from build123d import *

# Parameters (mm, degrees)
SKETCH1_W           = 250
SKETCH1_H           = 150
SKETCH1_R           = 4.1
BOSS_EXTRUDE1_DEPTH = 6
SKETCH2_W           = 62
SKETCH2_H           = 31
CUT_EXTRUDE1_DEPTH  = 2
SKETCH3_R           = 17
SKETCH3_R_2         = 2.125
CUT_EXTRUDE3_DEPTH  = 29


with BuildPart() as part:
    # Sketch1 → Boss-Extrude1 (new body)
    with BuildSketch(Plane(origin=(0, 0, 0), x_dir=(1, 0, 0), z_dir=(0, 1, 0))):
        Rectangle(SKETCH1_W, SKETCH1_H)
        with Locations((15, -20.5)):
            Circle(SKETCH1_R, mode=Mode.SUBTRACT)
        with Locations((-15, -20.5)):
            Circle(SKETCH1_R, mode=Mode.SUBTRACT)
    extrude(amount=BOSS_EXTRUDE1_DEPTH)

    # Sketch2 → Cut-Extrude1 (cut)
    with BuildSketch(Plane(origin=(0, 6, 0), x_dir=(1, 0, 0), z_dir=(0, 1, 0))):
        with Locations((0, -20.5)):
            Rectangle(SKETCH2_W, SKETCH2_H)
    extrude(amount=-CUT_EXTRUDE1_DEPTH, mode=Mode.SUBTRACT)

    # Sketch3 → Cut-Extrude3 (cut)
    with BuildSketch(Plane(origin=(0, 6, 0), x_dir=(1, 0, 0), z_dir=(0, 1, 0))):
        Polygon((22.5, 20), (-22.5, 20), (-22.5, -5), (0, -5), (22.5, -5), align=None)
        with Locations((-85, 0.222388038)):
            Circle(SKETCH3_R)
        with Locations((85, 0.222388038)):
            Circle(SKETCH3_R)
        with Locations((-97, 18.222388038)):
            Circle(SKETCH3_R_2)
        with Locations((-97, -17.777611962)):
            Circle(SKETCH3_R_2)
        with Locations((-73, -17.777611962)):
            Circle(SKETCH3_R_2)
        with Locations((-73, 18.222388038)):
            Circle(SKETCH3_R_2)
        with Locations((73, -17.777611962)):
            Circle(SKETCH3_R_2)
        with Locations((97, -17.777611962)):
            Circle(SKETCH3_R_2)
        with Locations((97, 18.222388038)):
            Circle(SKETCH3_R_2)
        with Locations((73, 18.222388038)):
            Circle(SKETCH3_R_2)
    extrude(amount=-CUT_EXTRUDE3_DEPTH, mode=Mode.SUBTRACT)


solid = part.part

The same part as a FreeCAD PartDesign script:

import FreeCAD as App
import Part
import Sketcher
from FreeCAD import Vector
Q = App.Units.Quantity


def add_polygon(sketch, points):
    """Adds a closed chain of lines whose ends are joined by coincident constraints."""
    first, n = sketch.GeometryCount, len(points)
    for a, b in zip(points, points[1:] + points[:1]):
        sketch.addGeometry(Part.LineSegment(App.Vector(*a, 0), App.Vector(*b, 0)), False)
    for i in range(n):
        sketch.addConstraint(Sketcher.Constraint("Coincident", first + i, 2, first + (i + 1) % n, 1))

doc = App.newDocument("Part")
params = doc.addObject("Spreadsheet::Sheet", "Params")
for row, (alias, value) in enumerate([
    ("sketch1_diameter", "8.2 mm"),
    ("sketch1_width", "250 mm"),
    ("sketch1_height", "150 mm"),
    ("pad1_length", "6 mm"),
    ("sketch2_width", "62 mm"),
    ("sketch2_height", "31 mm"),
    ("pocket1_length", "2 mm"),
    ("sketch3_diameter", "34 mm"),
    ("sketch3_diameter2", "4.25 mm"),
    ("sketch3_width", "45 mm"),
    ("sketch3_height", "25 mm"),
    ("pocket2_length", "29 mm"),
], start=1):
    params.set(f"A{row}", alias)
    params.set(f"B{row}", "=" + value)
    params.setAlias(f"B{row}", alias)

body = doc.addObject("PartDesign::Body", "Body")

sketch1 = body.newObject("Sketcher::SketchObject", "Sketch")
sketch1.AttachmentSupport = (doc.getObject("XZ_Plane"), [""])
sketch1.MapMode = "FlatFace"
add_polygon(sketch1, [(-125, -75), (-125, 75), (125, 75), (125, -75)])
sketch1.addGeometry(Part.Circle(Vector(-15, 20.5, 0), Vector(0, 0, 1), 4.1), False)
sketch1.addGeometry(Part.Circle(Vector(15, 20.5, 0), Vector(0, 0, 1), 4.1), False)
sketch1.addConstraint([
    Sketcher.Constraint("Vertical", 0),
    Sketcher.Constraint("Horizontal", 1),
    Sketcher.Constraint("Vertical", 2),
    Sketcher.Constraint("Horizontal", 3),
    Sketcher.Constraint("Equal", 4, 5),
    Sketcher.Constraint("Symmetric", 0, 2, 2, 2, -1, 1),
    Sketcher.Constraint("Symmetric", 4, 3, 5, 3, -2),
    Sketcher.Constraint("Diameter", 4, Q("8.2 mm")),
    Sketcher.Constraint("DistanceX", 1, 1, 1, 2, Q("250 mm")),
    Sketcher.Constraint("DistanceY", 0, 1, 0, 2, Q("150 mm")),
    Sketcher.Constraint("DistanceX", 4, 3, -1, 1, Q("15 mm")),
    Sketcher.Constraint("DistanceY", -1, 1, 4, 3, Q("20.5 mm")),
])
sketch1.setExpression("Constraints[11]", "Params.sketch1_diameter")
sketch1.setExpression("Constraints[12]", "Params.sketch1_width")
sketch1.setExpression("Constraints[13]", "Params.sketch1_height")
pad1 = body.newObject("PartDesign::Pad", "Pad")
pad1.Profile = sketch1
pad1.setExpression("Length", "Params.pad1_length")
pad1.Reversed = True

sketch2 = body.newObject("Sketcher::SketchObject", "Sketch001")
sketch2.AttachmentSupport = (doc.getObject("XZ_Plane"), [""])
sketch2.MapMode = "FlatFace"
sketch2.AttachmentOffset = App.Placement(Vector(0, 0, -6), App.Rotation())
add_polygon(sketch2, [(-31, 5), (-31, 36), (31, 36), (31, 5)])
sketch2.addConstraint([
    Sketcher.Constraint("Vertical", 0),
    Sketcher.Constraint("Horizontal", 1),
    Sketcher.Constraint("Vertical", 2),
    Sketcher.Constraint("Horizontal", 3),
    Sketcher.Constraint("DistanceX", 1, 1, 1, 2, Q("62 mm")),
    Sketcher.Constraint("DistanceY", 0, 1, 0, 2, Q("31 mm")),
    Sketcher.Constraint("DistanceX", 0, 2, -1, 1, Q("31 mm")),
    Sketcher.Constraint("DistanceY", -1, 1, 0, 2, Q("36 mm")),
])
sketch2.setExpression("Constraints[8]", "Params.sketch2_width")
sketch2.setExpression("Constraints[9]", "Params.sketch2_height")
pocket1 = body.newObject("PartDesign::Pocket", "Pocket")
pocket1.Profile = sketch2
pocket1.setExpression("Length", "Params.pocket1_length")
pocket1.Reversed = True

sketch3 = body.newObject("Sketcher::SketchObject", "Sketch002")
sketch3.AttachmentSupport = (doc.getObject("XZ_Plane"), [""])
sketch3.MapMode = "FlatFace"
sketch3.AttachmentOffset = App.Placement(Vector(0, 0, -6), App.Rotation())
add_polygon(sketch3, [(22.5, -20), (-22.5, -20), (-22.5, 5), (22.5, 5)])
sketch3.addGeometry(Part.Circle(Vector(-85, -0.2, 0), Vector(0, 0, 1), 17), False)
sketch3.addGeometry(Part.Circle(Vector(85, -0.2, 0), Vector(0, 0, 1), 17), False)
sketch3.addGeometry(Part.Circle(Vector(-97, -18.2, 0), Vector(0, 0, 1), 2.1), False)
sketch3.addGeometry(Part.Circle(Vector(-97, 17.8, 0), Vector(0, 0, 1), 2.1), False)
sketch3.addGeometry(Part.Circle(Vector(-73, 17.8, 0), Vector(0, 0, 1), 2.1), False)
sketch3.addGeometry(Part.Circle(Vector(-73, -18.2, 0), Vector(0, 0, 1), 2.1), False)
sketch3.addGeometry(Part.Circle(Vector(73, 17.8, 0), Vector(0, 0, 1), 2.1), False)
sketch3.addGeometry(Part.Circle(Vector(97, 17.8, 0), Vector(0, 0, 1), 2.1), False)
sketch3.addGeometry(Part.Circle(Vector(97, -18.2, 0), Vector(0, 0, 1), 2.1), False)
sketch3.addGeometry(Part.Circle(Vector(73, -18.2, 0), Vector(0, 0, 1), 2.1), False)
sketch3.addConstraint([
    Sketcher.Constraint("Horizontal", 0),
    Sketcher.Constraint("Vertical", 1),
    Sketcher.Constraint("Horizontal", 2),
    Sketcher.Constraint("Vertical", 3),
    Sketcher.Constraint("Equal", 4, 5),
    Sketcher.Constraint("Equal", 6, 7),
    Sketcher.Constraint("Equal", 7, 8),
    Sketcher.Constraint("Equal", 8, 9),
    Sketcher.Constraint("Equal", 9, 10),
    Sketcher.Constraint("Equal", 10, 11),
    Sketcher.Constraint("Equal", 11, 12),
    Sketcher.Constraint("Equal", 12, 13),
    Sketcher.Constraint("Symmetric", 4, 3, 5, 3, -2),
    Sketcher.Constraint("Symmetric", 8, 3, 10, 3, -2),
    Sketcher.Constraint("Symmetric", 7, 3, 11, 3, -2),
    Sketcher.Constraint("Symmetric", 6, 3, 12, 3, -2),
    Sketcher.Constraint("Symmetric", 9, 3, 13, 3, -2),
    Sketcher.Constraint("Horizontal", 7, 3, 8, 3),
    Sketcher.Constraint("Horizontal", 6, 3, 9, 3),
    Sketcher.Constraint("Vertical", 6, 3, 7, 3),
    Sketcher.Constraint("Vertical", 8, 3, 9, 3),
    Sketcher.Constraint("Diameter", 4, Q("34 mm")),
    Sketcher.Constraint("Diameter", 6, Q("4.25 mm")),
    Sketcher.Constraint("DistanceX", 0, 2, 0, 1, Q("45 mm")),
    Sketcher.Constraint("DistanceY", 1, 1, 1, 2, Q("25 mm")),
    Sketcher.Constraint("DistanceX", 4, 3, -1, 1, Q("85 mm")),
    Sketcher.Constraint("DistanceX", 6, 3, -1, 1, Q("97 mm")),
    Sketcher.Constraint("DistanceX", 8, 3, -1, 1, Q("73 mm")),
    Sketcher.Constraint("DistanceY", 0, 2, -1, 1, Q("20 mm")),
    Sketcher.Constraint("DistanceY", 6, 3, 4, 3, Q("18 mm")),
    Sketcher.Constraint("DistanceY", 4, 3, 7, 3, Q("18 mm")),
    Sketcher.Constraint("DistanceX", 0, 2, -1, 1, Q("22.5 mm")),
    Sketcher.Constraint("DistanceY", 4, 3, -1, 1, Q("0.222388 mm")),
])
sketch3.setExpression("Constraints[25]", "Params.sketch3_diameter")
sketch3.setExpression("Constraints[26]", "Params.sketch3_diameter2")
sketch3.setExpression("Constraints[27]", "Params.sketch3_width")
sketch3.setExpression("Constraints[28]", "Params.sketch3_height")
pocket2 = body.newObject("PartDesign::Pocket", "Pocket001")
pocket2.Profile = sketch3
pocket2.setExpression("Length", "Params.pocket2_length")
pocket2.Reversed = True

doc.recompute()
